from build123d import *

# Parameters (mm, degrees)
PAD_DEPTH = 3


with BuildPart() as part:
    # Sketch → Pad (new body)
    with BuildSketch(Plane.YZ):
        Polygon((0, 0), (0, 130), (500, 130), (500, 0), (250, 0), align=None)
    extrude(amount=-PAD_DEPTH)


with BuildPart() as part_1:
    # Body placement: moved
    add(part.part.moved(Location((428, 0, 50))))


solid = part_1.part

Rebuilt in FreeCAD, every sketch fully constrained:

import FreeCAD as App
import Part
import Sketcher

V = App.Vector
Q = App.Units.Quantity

doc = App.newDocument("Part")
body = doc.addObject("PartDesign::Body", "Body")

# Sketch on YZ plane
sketch1 = doc.addObject("Sketcher::SketchObject", "Sketch")
body.addObject(sketch1)
sketch1.AttachmentSupport = (doc.YZ_Plane, [""])
sketch1.MapMode = "FlatFace"
sketch1.addGeometry(Part.LineSegment(V(0, 130, 0), V(0, 0, 0)), False)
sketch1.addGeometry(Part.LineSegment(V(0, 0, 0), V(500, 0, 0)), False)
sketch1.addGeometry(Part.LineSegment(V(500, 0, 0), V(500, 130, 0)), False)
sketch1.addGeometry(Part.LineSegment(V(500, 130, 0), V(0, 130, 0)), False)
sketch1.addConstraint(Sketcher.Constraint("Coincident", 0, 2, 1, 1))
sketch1.addConstraint(Sketcher.Constraint("Coincident", 1, 2, 2, 1))
sketch1.addConstraint(Sketcher.Constraint("Coincident", 2, 2, 3, 1))
sketch1.addConstraint(Sketcher.Constraint("Coincident", 3, 2, 0, 1))
sketch1.addConstraint(Sketcher.Constraint("Vertical", 0))
sketch1.addConstraint(Sketcher.Constraint("Horizontal", 1))
sketch1.addConstraint(Sketcher.Constraint("Vertical", 2))
sketch1.addConstraint(Sketcher.Constraint("Horizontal", 3))
sketch1.addConstraint(Sketcher.Constraint("Coincident", 0, 2, -1, 1))
sketch1.addConstraint(Sketcher.Constraint("DistanceX", 1, 1, 1, 2, Q("500 mm")))
sketch1.addConstraint(Sketcher.Constraint("DistanceY", 0, 2, 0, 1, Q("130 mm")))
pad1 = doc.addObject("PartDesign::Pad", "Pad")
body.addObject(pad1)
pad1.Profile = sketch1
pad1.Length = 3
pad1.Reversed = True
body2 = doc.addObject("PartDesign::Body", "Body001")
doc.recompute()

body.Placement = App.Placement(V(428, 0, 50), App.Rotation(V(0, 0, 1), 0))
boolean = doc.addObject("PartDesign::Boolean", "Boolean")
body2.addObject(boolean)
boolean.Type = "Fuse"
boolean.addObjects([body])

doc.recompute()
